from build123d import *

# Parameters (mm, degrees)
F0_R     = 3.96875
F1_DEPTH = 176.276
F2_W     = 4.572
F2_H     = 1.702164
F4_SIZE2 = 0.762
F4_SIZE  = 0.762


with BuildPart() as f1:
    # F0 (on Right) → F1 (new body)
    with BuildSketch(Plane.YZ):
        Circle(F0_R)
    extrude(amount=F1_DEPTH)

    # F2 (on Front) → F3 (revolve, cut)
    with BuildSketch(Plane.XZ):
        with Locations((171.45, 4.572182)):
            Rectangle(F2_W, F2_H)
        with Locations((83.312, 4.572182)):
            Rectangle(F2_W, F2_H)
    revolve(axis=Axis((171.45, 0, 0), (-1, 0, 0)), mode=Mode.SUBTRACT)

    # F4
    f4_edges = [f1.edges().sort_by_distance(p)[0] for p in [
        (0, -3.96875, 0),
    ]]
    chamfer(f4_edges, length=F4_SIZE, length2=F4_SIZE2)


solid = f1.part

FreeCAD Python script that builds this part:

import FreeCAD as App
import Part
import Sketcher
from FreeCAD import Vector
Q = App.Units.Quantity


def edges_at(feature, points):
    """Names of the edges that pass closest to the given points."""
    edges = feature.Shape.Edges
    near = lambda p: min(range(len(edges)), key=lambda i: edges[i].distToShape(Part.Vertex(*p))[0])
    return sorted({f"Edge{near(p) + 1}" for p in points})


def add_polygon(sketch, points):
    """Adds a closed chain of lines whose ends are joined by coincident constraints."""
    first, n = sketch.GeometryCount, len(points)
    for a, b in zip(points, points[1:] + points[:1]):
        sketch.addGeometry(Part.LineSegment(App.Vector(*a, 0), App.Vector(*b, 0)), False)
    for i in range(n):
        sketch.addConstraint(Sketcher.Constraint("Coincident", first + i, 2, first + (i + 1) % n, 1))

doc = App.newDocument("Part")
params = doc.addObject("Spreadsheet::Sheet", "Params")
for row, (alias, value) in enumerate([
    ("sketch1_diameter", "0.3125 in"),
    ("pad1_length", "6.94 in"),
    ("sketch2_width", "0.18 in"),
    ("groove_angle", "360 deg"),
    ("chamfer_size", "0.03 in"),
    ("chamfer_size2", "0.03 in"),
], start=1):
    params.set(f"A{row}", alias)
    params.set(f"B{row}", "=" + value)
    params.setAlias(f"B{row}", alias)

body = doc.addObject("PartDesign::Body", "Body")

sketch1 = body.newObject("Sketcher::SketchObject", "Sketch")
sketch1.AttachmentSupport = (doc.getObject("YZ_Plane"), [""])
sketch1.MapMode = "FlatFace"
sketch1.addGeometry(Part.Circle(Vector(0, 0, 0), Vector(0, 0, 1), 4), False)
sketch1.addConstraint([
    Sketcher.Constraint("Coincident", 0, 3, -1, 1),
    Sketcher.Constraint("Diameter", 0, Q("0.3125 in")),
])
sketch1.setExpression("Constraints[1]", "Params.sketch1_diameter")
pad1 = body.newObject("PartDesign::Pad", "Pad")
pad1.Profile = sketch1
pad1.setExpression("Length", "Params.pad1_length")

sketch2 = body.newObject("Sketcher::SketchObject", "Sketch001")
sketch2.AttachmentSupport = (doc.getObject("XZ_Plane"), [""])
sketch2.MapMode = "FlatFace"
add_polygon(sketch2, [(169.2, 5.4), (169.2, 3.7), (173.7, 3.7), (173.7, 5.4)])
add_polygon(sketch2, [(81, 5.4), (81, 3.7), (85.6, 3.7), (85.6, 5.4)])
sketch2.addConstraint([
    Sketcher.Constraint("Vertical", 0),
    Sketcher.Constraint("Horizontal", 1),
    Sketcher.Constraint("Vertical", 2),
    Sketcher.Constraint("Horizontal", 3),
    Sketcher.Constraint("Vertical", 4),
    Sketcher.Constraint("Horizontal", 5),
    Sketcher.Constraint("Vertical", 6),
    Sketcher.Constraint("Horizontal", 7),
    Sketcher.Constraint("Horizontal", 1, 2, 4, 2),
    Sketcher.Constraint("Horizontal", 3, 2, 6, 2),
    Sketcher.Constraint("Equal", 3, 5),
    Sketcher.Constraint("DistanceX", 1, 1, 1, 2, Q("0.18 in")),
    Sketcher.Constraint("DistanceX", -1, 1, 0, 2, Q("6.66 in")),
    Sketcher.Constraint("DistanceX", -1, 1, 4, 2, Q("3.19 in")),
    Sketcher.Constraint("DistanceY", -1, 1, 0, 2, Q("0.1465 in")),
    Sketcher.Constraint("DistanceY", 0, 2, 0, 1, 1.702164),
])
sketch2.setExpression("Constraints[19]", "Params.sketch2_width")
groove = body.newObject("PartDesign::Groove", "Groove")
groove.Profile = sketch2
groove.ReferenceAxis = (sketch2, ["H_Axis"])
groove.setExpression("Angle", "Params.groove_angle")
doc.recompute()

chamfer = body.newObject("PartDesign::Chamfer", "Chamfer")
chamfer.Base = (groove, edges_at(groove, [(0, -3.969, 0)]))
chamfer.ChamferType = "Two distances"
chamfer.setExpression("Size", "Params.chamfer_size")
chamfer.setExpression("Size2", "Params.chamfer_size2")

doc.recompute()
